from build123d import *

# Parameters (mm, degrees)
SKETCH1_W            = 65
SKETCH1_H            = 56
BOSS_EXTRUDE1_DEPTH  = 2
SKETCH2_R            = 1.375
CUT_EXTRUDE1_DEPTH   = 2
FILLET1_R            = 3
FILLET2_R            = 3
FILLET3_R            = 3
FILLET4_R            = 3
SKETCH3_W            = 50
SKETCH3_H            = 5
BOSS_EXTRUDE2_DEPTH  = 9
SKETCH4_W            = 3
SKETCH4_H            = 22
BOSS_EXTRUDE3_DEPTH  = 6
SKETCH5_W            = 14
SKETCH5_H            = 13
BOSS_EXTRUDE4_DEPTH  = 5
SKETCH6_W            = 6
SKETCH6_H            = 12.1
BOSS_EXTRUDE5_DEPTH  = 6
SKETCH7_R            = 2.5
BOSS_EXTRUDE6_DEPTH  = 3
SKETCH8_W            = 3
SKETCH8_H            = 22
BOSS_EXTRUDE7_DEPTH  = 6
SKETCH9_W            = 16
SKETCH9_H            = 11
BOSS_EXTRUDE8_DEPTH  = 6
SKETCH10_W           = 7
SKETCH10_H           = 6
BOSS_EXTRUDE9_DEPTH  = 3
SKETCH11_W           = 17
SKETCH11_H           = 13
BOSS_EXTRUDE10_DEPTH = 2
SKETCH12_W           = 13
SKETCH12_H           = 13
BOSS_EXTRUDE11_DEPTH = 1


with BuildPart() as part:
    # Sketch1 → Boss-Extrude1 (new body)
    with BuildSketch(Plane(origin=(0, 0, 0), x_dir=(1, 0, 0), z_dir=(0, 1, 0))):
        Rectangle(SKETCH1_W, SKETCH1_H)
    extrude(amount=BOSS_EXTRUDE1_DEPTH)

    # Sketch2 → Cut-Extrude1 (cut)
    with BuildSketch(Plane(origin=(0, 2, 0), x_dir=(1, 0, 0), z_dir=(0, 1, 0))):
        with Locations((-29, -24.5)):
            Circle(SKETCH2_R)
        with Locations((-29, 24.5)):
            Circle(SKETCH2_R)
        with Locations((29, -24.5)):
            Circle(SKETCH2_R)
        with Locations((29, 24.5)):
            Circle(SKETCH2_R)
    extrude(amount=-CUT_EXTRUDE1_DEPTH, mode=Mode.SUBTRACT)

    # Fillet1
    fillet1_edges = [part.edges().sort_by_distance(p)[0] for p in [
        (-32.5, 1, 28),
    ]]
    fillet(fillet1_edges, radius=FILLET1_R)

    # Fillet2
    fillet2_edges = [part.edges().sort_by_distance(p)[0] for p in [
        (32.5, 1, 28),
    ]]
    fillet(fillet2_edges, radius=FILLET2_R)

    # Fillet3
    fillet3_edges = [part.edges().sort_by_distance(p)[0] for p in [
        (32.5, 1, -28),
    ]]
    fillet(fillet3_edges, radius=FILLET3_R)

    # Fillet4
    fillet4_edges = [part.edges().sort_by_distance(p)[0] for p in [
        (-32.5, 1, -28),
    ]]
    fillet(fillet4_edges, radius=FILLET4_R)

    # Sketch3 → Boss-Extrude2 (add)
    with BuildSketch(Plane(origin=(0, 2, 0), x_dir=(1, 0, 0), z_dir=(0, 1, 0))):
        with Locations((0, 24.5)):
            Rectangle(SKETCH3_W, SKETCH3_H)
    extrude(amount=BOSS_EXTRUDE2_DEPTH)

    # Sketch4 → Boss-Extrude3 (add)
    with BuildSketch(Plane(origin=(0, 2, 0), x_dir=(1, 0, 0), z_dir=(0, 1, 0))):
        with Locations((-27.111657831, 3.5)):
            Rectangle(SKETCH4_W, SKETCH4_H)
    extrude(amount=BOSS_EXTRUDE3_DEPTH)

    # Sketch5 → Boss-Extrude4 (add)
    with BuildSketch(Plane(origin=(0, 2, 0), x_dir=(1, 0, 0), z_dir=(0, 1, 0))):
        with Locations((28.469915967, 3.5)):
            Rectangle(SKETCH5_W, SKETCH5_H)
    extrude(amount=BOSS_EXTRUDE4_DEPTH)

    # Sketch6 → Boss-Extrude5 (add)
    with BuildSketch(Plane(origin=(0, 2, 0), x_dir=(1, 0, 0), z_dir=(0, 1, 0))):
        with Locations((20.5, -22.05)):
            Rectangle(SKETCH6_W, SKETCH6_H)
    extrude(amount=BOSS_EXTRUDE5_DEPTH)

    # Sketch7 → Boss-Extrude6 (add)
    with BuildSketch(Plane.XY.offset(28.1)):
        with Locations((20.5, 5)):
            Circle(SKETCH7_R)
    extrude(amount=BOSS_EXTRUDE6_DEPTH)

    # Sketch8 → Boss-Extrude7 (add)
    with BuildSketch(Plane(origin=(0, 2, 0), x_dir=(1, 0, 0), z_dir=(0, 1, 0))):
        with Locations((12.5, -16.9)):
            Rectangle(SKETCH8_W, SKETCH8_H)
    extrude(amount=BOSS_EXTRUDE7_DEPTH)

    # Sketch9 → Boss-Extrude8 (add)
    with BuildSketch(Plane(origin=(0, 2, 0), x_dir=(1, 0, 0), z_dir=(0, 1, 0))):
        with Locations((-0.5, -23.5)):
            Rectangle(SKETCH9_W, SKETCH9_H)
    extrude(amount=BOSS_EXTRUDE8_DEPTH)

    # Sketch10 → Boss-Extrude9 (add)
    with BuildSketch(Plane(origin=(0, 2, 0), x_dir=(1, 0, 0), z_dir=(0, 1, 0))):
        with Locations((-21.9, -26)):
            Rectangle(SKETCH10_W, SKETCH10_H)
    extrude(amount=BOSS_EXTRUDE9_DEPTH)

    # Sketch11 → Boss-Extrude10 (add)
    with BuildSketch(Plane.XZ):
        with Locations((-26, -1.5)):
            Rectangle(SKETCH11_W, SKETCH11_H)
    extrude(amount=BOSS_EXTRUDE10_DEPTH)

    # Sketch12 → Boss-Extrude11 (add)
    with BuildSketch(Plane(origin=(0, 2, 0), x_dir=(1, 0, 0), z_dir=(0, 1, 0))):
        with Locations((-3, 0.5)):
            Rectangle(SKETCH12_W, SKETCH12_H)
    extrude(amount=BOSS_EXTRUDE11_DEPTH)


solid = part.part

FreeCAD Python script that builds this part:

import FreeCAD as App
import Part
import Sketcher


def edges_at(feature, points):
    """Names of the edges that pass closest to the given points."""
    edges = feature.Shape.Edges
    near = lambda p: min(range(len(edges)), key=lambda i: edges[i].distToShape(Part.Vertex(*p))[0])
    return sorted({f"Edge{near(p) + 1}" for p in points})

doc = App.newDocument("Part")
body = doc.addObject("PartDesign::Body", "Body")

sketch1 = doc.addObject("Sketcher::SketchObject", "Sketch")
body.addObject(sketch1)
sketch1.AttachmentSupport = (doc.XZ_Plane, [""])
sketch1.MapMode = "FlatFace"
sketch1.addGeometry([
    Part.LineSegment(App.Vector(-32.5, -28, 0), App.Vector(-32.5, 28, 0)),
    Part.LineSegment(App.Vector(-32.5, 28, 0), App.Vector(32.5, 28, 0)),
    Part.LineSegment(App.Vector(32.5, 28, 0), App.Vector(32.5, -28, 0)),
    Part.LineSegment(App.Vector(32.5, -28, 0), App.Vector(-32.5, -28, 0)),
], False)
sketch1.addConstraint([
    Sketcher.Constraint("Coincident", 0, 2, 1, 1),
    Sketcher.Constraint("Coincident", 1, 2, 2, 1),
    Sketcher.Constraint("Coincident", 2, 2, 3, 1),
    Sketcher.Constraint("Coincident", 3, 2, 0, 1),
    Sketcher.Constraint("Vertical", 0),
    Sketcher.Constraint("Horizontal", 1),
    Sketcher.Constraint("Vertical", 2),
    Sketcher.Constraint("Horizontal", 3),
    Sketcher.Constraint("Symmetric", 0, 2, 2, 2, -1, 1),
    Sketcher.Constraint("DistanceX", 1, 1, 1, 2, 65.0),
    Sketcher.Constraint("DistanceY", 0, 1, 0, 2, 56.0),
])
pad1 = doc.addObject("PartDesign::Pad", "Pad")
body.addObject(pad1)
pad1.Profile = sketch1
pad1.Length = 2
pad1.Reversed = True

sketch2 = doc.addObject("Sketcher::SketchObject", "Sketch001")
body.addObject(sketch2)
sketch2.AttachmentSupport = (doc.XZ_Plane, [""])
sketch2.MapMode = "FlatFace"
sketch2.AttachmentOffset = App.Placement(App.Vector(0, 0, -2), App.Rotation())
sketch2.addGeometry([
    Part.Circle(App.Vector(-29, 24.5, 0), App.Vector(0, 0, 1), 1.375),
    Part.Circle(App.Vector(-29, -24.5, 0), App.Vector(0, 0, 1), 1.375),
    Part.Circle(App.Vector(29, 24.5, 0), App.Vector(0, 0, 1), 1.375),
    Part.Circle(App.Vector(29, -24.5, 0), App.Vector(0, 0, 1), 1.375),
], False)
sketch2.addConstraint([
    Sketcher.Constraint("Equal", 0, 1),
    Sketcher.Constraint("Equal", 1, 2),
    Sketcher.Constraint("Equal", 2, 3),
    Sketcher.Constraint("Symmetric", 1, 3, 2, 3, -1, 1),
    Sketcher.Constraint("Symmetric", 0, 3, 3, 3, -1, 1),
    Sketcher.Constraint("Symmetric", 0, 3, 2, 3, -2),
    Sketcher.Constraint("Diameter", 0, 2.75),
    Sketcher.Constraint("DistanceX", 0, 3, -1, 1, 29.0),
    Sketcher.Constraint("DistanceY", 1, 3, 0, 3, 49.0),
])
pocket1 = doc.addObject("PartDesign::Pocket", "Pocket")
body.addObject(pocket1)
pocket1.Profile = sketch2
pocket1.Length = 2
pocket1.Reversed = True
doc.recompute()

fillet = doc.addObject("PartDesign::Fillet", "Fillet")
body.addObject(fillet)
fillet.Base = (pocket1, edges_at(pocket1, [(-32.5, 1, 28)]))
fillet.Radius = 3
doc.recompute()

fillet2 = doc.addObject("PartDesign::Fillet", "Fillet001")
body.addObject(fillet2)
fillet2.Base = (fillet, edges_at(fillet, [(32.5, 1, 28)]))
fillet2.Radius = 3
doc.recompute()

fillet3 = doc.addObject("PartDesign::Fillet", "Fillet002")
body.addObject(fillet3)
fillet3.Base = (fillet2, edges_at(fillet2, [(32.5, 1, -28)]))
fillet3.Radius = 3
doc.recompute()

fillet4 = doc.addObject("PartDesign::Fillet", "Fillet003")
body.addObject(fillet4)
fillet4.Base = (fillet3, edges_at(fillet3, [(-32.5, 1, -28)]))
fillet4.Radius = 3

sketch3 = doc.addObject("Sketcher::SketchObject", "Sketch002")
body.addObject(sketch3)
sketch3.AttachmentSupport = (doc.XZ_Plane, [""])
sketch3.MapMode = "FlatFace"
sketch3.AttachmentOffset = App.Placement(App.Vector(0, 0, -2), App.Rotation())
sketch3.addGeometry([
    Part.LineSegment(App.Vector(-25, -27, 0), App.Vector(-25, -22, 0)),
    Part.LineSegment(App.Vector(-25, -22, 0), App.Vector(25, -22, 0)),
    Part.LineSegment(App.Vector(25, -22, 0), App.Vector(25, -27, 0)),
    Part.LineSegment(App.Vector(25, -27, 0), App.Vector(-25, -27, 0)),
], False)
sketch3.addConstraint([
    Sketcher.Constraint("Coincident", 0, 2, 1, 1),
    Sketcher.Constraint("Coincident", 1, 2, 2, 1),
    Sketcher.Constraint("Coincident", 2, 2, 3, 1),
    Sketcher.Constraint("Coincident", 3, 2, 0, 1),
    Sketcher.Constraint("Vertical", 0),
    Sketcher.Constraint("Horizontal", 1),
    Sketcher.Constraint("Vertical", 2),
    Sketcher.Constraint("Horizontal", 3),
    Sketcher.Constraint("DistanceX", 1, 1, 1, 2, 50.0),
    Sketcher.Constraint("DistanceY", 0, 1, 0, 2, 5.0),
    Sketcher.Constraint("DistanceX", 0, 2, -1, 1, 25.0),
    Sketcher.Constraint("DistanceY", 0, 2, -1, 1, 22.0),
])
pad2 = doc.addObject("PartDesign::Pad", "Pad001")
body.addObject(pad2)
pad2.Profile = sketch3
pad2.Length = 9
pad2.Reversed = True

sketch4 = doc.addObject("Sketcher::SketchObject", "Sketch003")
body.addObject(sketch4)
sketch4.AttachmentSupport = (doc.XZ_Plane, [""])
sketch4.MapMode = "FlatFace"
sketch4.AttachmentOffset = App.Placement(App.Vector(0, 0, -2), App.Rotation())
sketch4.addGeometry([
    Part.LineSegment(App.Vector(-28.611658, -14.5, 0), App.Vector(-28.611658, 7.5, 0)),
    Part.LineSegment(App.Vector(-28.611658, 7.5, 0), App.Vector(-25.611658, 7.5, 0)),
    Part.LineSegment(App.Vector(-25.611658, 7.5, 0), App.Vector(-25.611658, -14.5, 0)),
    Part.LineSegment(App.Vector(-25.611658, -14.5, 0), App.Vector(-28.611658, -14.5, 0)),
], False)
sketch4.addConstraint([
    Sketcher.Constraint("Coincident", 0, 2, 1, 1),
    Sketcher.Constraint("Coincident", 1, 2, 2, 1),
    Sketcher.Constraint("Coincident", 2, 2, 3, 1),
    Sketcher.Constraint("Coincident", 3, 2, 0, 1),
    Sketcher.Constraint("Vertical", 0),
    Sketcher.Constraint("Horizontal", 1),
    Sketcher.Constraint("Vertical", 2),
    Sketcher.Constraint("Horizontal", 3),
    Sketcher.Constraint("DistanceX", 1, 1, 1, 2, 3.0),
    Sketcher.Constraint("DistanceY", 0, 1, 0, 2, 22.0),
    Sketcher.Constraint("DistanceY", -1, 1, 0, 2, 7.5),
    Sketcher.Constraint("DistanceX", 0, 2, -1, 1, 28.611658),
])
pad3 = doc.addObject("PartDesign::Pad", "Pad002")
body.addObject(pad3)
pad3.Profile = sketch4
pad3.Length = 6
pad3.Reversed = True

sketch5 = doc.addObject("Sketcher::SketchObject", "Sketch004")
body.addObject(sketch5)
sketch5.AttachmentSupport = (doc.XZ_Plane, [""])
sketch5.MapMode = "FlatFace"
sketch5.AttachmentOffset = App.Placement(App.Vector(0, 0, -2), App.Rotation())
sketch5.addGeometry([
    Part.LineSegment(App.Vector(21.469916, -10, 0), App.Vector(21.469916, 3, 0)),
    Part.LineSegment(App.Vector(21.469916, 3, 0), App.Vector(35.469916, 3, 0)),
    Part.LineSegment(App.Vector(35.469916, 3, 0), App.Vector(35.469916, -10, 0)),
    Part.LineSegment(App.Vector(35.469916, -10, 0), App.Vector(21.469916, -10, 0)),
], False)
sketch5.addConstraint([
    Sketcher.Constraint("Coincident", 0, 2, 1, 1),
    Sketcher.Constraint("Coincident", 1, 2, 2, 1),
    Sketcher.Constraint("Coincident", 2, 2, 3, 1),
    Sketcher.Constraint("Coincident", 3, 2, 0, 1),
    Sketcher.Constraint("Vertical", 0),
    Sketcher.Constraint("Horizontal", 1),
    Sketcher.Constraint("Vertical", 2),
    Sketcher.Constraint("Horizontal", 3),
    Sketcher.Constraint("DistanceX", 1, 1, 1, 2, 14.0),
    Sketcher.Constraint("DistanceY", 0, 1, 0, 2, 13.0),
    Sketcher.Constraint("DistanceY", -1, 1, 0, 2, 3.0),
    Sketcher.Constraint("DistanceX", -1, 1, 0, 2, 21.469916),
])
pad4 = doc.addObject("PartDesign::Pad", "Pad003")
body.addObject(pad4)
pad4.Profile = sketch5
pad4.Length = 5
pad4.Reversed = True

sketch6 = doc.addObject("Sketcher::SketchObject", "Sketch005")
body.addObject(sketch6)
sketch6.AttachmentSupport = (doc.XZ_Plane, [""])
sketch6.MapMode = "FlatFace"
sketch6.AttachmentOffset = App.Placement(App.Vector(0, 0, -2), App.Rotation())
sketch6.addGeometry([
    Part.LineSegment(App.Vector(17.5, 16, 0), App.Vector(17.5, 28.1, 0)),
    Part.LineSegment(App.Vector(17.5, 28.1, 0), App.Vector(23.5, 28.1, 0)),
    Part.LineSegment(App.Vector(23.5, 28.1, 0), App.Vector(23.5, 16, 0)),
    Part.LineSegment(App.Vector(23.5, 16, 0), App.Vector(17.5, 16, 0)),
], False)
sketch6.addConstraint([
    Sketcher.Constraint("Coincident", 0, 2, 1, 1),
    Sketcher.Constraint("Coincident", 1, 2, 2, 1),
    Sketcher.Constraint("Coincident", 2, 2, 3, 1),
    Sketcher.Constraint("Coincident", 3, 2, 0, 1),
    Sketcher.Constraint("Vertical", 0),
    Sketcher.Constraint("Horizontal", 1),
    Sketcher.Constraint("Vertical", 2),
    Sketcher.Constraint("Horizontal", 3),
    Sketcher.Constraint("DistanceX", 1, 1, 1, 2, 6.0),
    Sketcher.Constraint("DistanceY", 0, 1, 0, 2, 12.1),
    Sketcher.Constraint("DistanceY", -1, 1, 2, 2, 16.0),
    Sketcher.Constraint("DistanceX", -1, 1, 0, 2, 17.5),
])
pad5 = doc.addObject("PartDesign::Pad", "Pad004")
body.addObject(pad5)
pad5.Profile = sketch6
pad5.Length = 6
pad5.Reversed = True

sketch7 = doc.addObject("Sketcher::SketchObject", "Sketch006")
body.addObject(sketch7)
sketch7.AttachmentSupport = (doc.XY_Plane, [""])
sketch7.MapMode = "FlatFace"
sketch7.AttachmentOffset = App.Placement(App.Vector(0, 0, 28.1), App.Rotation())
sketch7.addGeometry(Part.Circle(App.Vector(20.5, 5, 0), App.Vector(0, 0, 1), 2.5), False)
sketch7.addConstraint([
    Sketcher.Constraint("Diameter", 0, 5.0),
    Sketcher.Constraint("DistanceY", -1, 1, 0, 3, 5.0),
    Sketcher.Constraint("DistanceX", -1, 1, 0, 3, 20.5),
])
pad6 = doc.addObject("PartDesign::Pad", "Pad005")
body.addObject(pad6)
pad6.Profile = sketch7
pad6.Length = 3

sketch8 = doc.addObject("Sketcher::SketchObject", "Sketch007")
body.addObject(sketch8)
sketch8.AttachmentSupport = (doc.XZ_Plane, [""])
sketch8.MapMode = "FlatFace"
sketch8.AttachmentOffset = App.Placement(App.Vector(0, 0, -2), App.Rotation())
sketch8.addGeometry([
    Part.LineSegment(App.Vector(11, 5.9, 0), App.Vector(11, 27.9, 0)),
    Part.LineSegment(App.Vector(11, 27.9, 0), App.Vector(14, 27.9, 0)),
    Part.LineSegment(App.Vector(14, 27.9, 0), App.Vector(14, 5.9, 0)),
    Part.LineSegment(App.Vector(14, 5.9, 0), App.Vector(11, 5.9, 0)),
], False)
sketch8.addConstraint([
    Sketcher.Constraint("Coincident", 0, 2, 1, 1),
    Sketcher.Constraint("Coincident", 1, 2, 2, 1),
    Sketcher.Constraint("Coincident", 2, 2, 3, 1),
    Sketcher.Constraint("Coincident", 3, 2, 0, 1),
    Sketcher.Constraint("Vertical", 0),
    Sketcher.Constraint("Horizontal", 1),
    Sketcher.Constraint("Vertical", 2),
    Sketcher.Constraint("Horizontal", 3),
    Sketcher.Constraint("DistanceX", 1, 1, 1, 2, 3.0),
    Sketcher.Constraint("DistanceY", 0, 1, 0, 2, 22.0),
    Sketcher.Constraint("DistanceX", -1, 1, 0, 2, 11.0),
    Sketcher.Constraint("DistanceY", -1, 1, 0, 2, 27.9),
])
pad7 = doc.addObject("PartDesign::Pad", "Pad006")
body.addObject(pad7)
pad7.Profile = sketch8
pad7.Length = 6
pad7.Reversed = True

sketch9 = doc.addObject("Sketcher::SketchObject", "Sketch008")
body.addObject(sketch9)
sketch9.AttachmentSupport = (doc.XZ_Plane, [""])
sketch9.MapMode = "FlatFace"
sketch9.AttachmentOffset = App.Placement(App.Vector(0, 0, -2), App.Rotation())
sketch9.addGeometry([
    Part.LineSegment(App.Vector(-8.5, 18, 0), App.Vector(-8.5, 29, 0)),
    Part.LineSegment(App.Vector(-8.5, 29, 0), App.Vector(7.5, 29, 0)),
    Part.LineSegment(App.Vector(7.5, 29, 0), App.Vector(7.5, 18, 0)),
    Part.LineSegment(App.Vector(7.5, 18, 0), App.Vector(-8.5, 18, 0)),
], False)
sketch9.addConstraint([
    Sketcher.Constraint("Coincident", 0, 2, 1, 1),
    Sketcher.Constraint("Coincident", 1, 2, 2, 1),
    Sketcher.Constraint("Coincident", 2, 2, 3, 1),
    Sketcher.Constraint("Coincident", 3, 2, 0, 1),
    Sketcher.Constraint("Vertical", 0),
    Sketcher.Constraint("Horizontal", 1),
    Sketcher.Constraint("Vertical", 2),
    Sketcher.Constraint("Horizontal", 3),
    Sketcher.Constraint("DistanceX", 1, 1, 1, 2, 16.0),
    Sketcher.Constraint("DistanceY", 0, 1, 0, 2, 11.0),
    Sketcher.Constraint("DistanceY", -1, 1, 0, 2, 29.0),
    Sketcher.Constraint("DistanceX", 0, 2, -1, 1, 8.5),
])
pad8 = doc.addObject("PartDesign::Pad", "Pad007")
body.addObject(pad8)
pad8.Profile = sketch9
pad8.Length = 6
pad8.Reversed = True

sketch10 = doc.addObject("Sketcher::SketchObject", "Sketch009")
body.addObject(sketch10)
sketch10.AttachmentSupport = (doc.XZ_Plane, [""])
sketch10.MapMode = "FlatFace"
sketch10.AttachmentOffset = App.Placement(App.Vector(0, 0, -2), App.Rotation())
sketch10.addGeometry([
    Part.LineSegment(App.Vector(-25.4, 23, 0), App.Vector(-25.4, 29, 0)),
    Part.LineSegment(App.Vector(-25.4, 29, 0), App.Vector(-18.4, 29, 0)),
    Part.LineSegment(App.Vector(-18.4, 29, 0), App.Vector(-18.4, 23, 0)),
    Part.LineSegment(App.Vector(-18.4, 23, 0), App.Vector(-25.4, 23, 0)),
], False)
sketch10.addConstraint([
    Sketcher.Constraint("Coincident", 0, 2, 1, 1),
    Sketcher.Constraint("Coincident", 1, 2, 2, 1),
    Sketcher.Constraint("Coincident", 2, 2, 3, 1),
    Sketcher.Constraint("Coincident", 3, 2, 0, 1),
    Sketcher.Constraint("Vertical", 0),
    Sketcher.Constraint("Horizontal", 1),
    Sketcher.Constraint("Vertical", 2),
    Sketcher.Constraint("Horizontal", 3),
    Sketcher.Constraint("DistanceX", 1, 1, 1, 2, 7.0),
    Sketcher.Constraint("DistanceY", 0, 1, 0, 2, 6.0),
    Sketcher.Constraint("DistanceY", -1, 1, 0, 2, 29.0),
    Sketcher.Constraint("DistanceX", 0, 2, -1, 1, 25.4),
])
pad9 = doc.addObject("PartDesign::Pad", "Pad008")
body.addObject(pad9)
pad9.Profile = sketch10
pad9.Length = 3
pad9.Reversed = True

sketch11 = doc.addObject("Sketcher::SketchObject", "Sketch010")
body.addObject(sketch11)
sketch11.AttachmentSupport = (doc.XZ_Plane, [""])
sketch11.MapMode = "FlatFace"
sketch11.addGeometry([
    Part.LineSegment(App.Vector(-34.5, 5, 0), App.Vector(-34.5, -8, 0)),
    Part.LineSegment(App.Vector(-34.5, -8, 0), App.Vector(-17.5, -8, 0)),
    Part.LineSegment(App.Vector(-17.5, -8, 0), App.Vector(-17.5, 5, 0)),
    Part.LineSegment(App.Vector(-17.5, 5, 0), App.Vector(-34.5, 5, 0)),
], False)
sketch11.addConstraint([
    Sketcher.Constraint("Coincident", 0, 2, 1, 1),
    Sketcher.Constraint("Coincident", 1, 2, 2, 1),
    Sketcher.Constraint("Coincident", 2, 2, 3, 1),
    Sketcher.Constraint("Coincident", 3, 2, 0, 1),
    Sketcher.Constraint("Vertical", 0),
    Sketcher.Constraint("Horizontal", 1),
    Sketcher.Constraint("Vertical", 2),
    Sketcher.Constraint("Horizontal", 3),
    Sketcher.Constraint("DistanceX", 1, 1, 1, 2, 17.0),
    Sketcher.Constraint("DistanceY", 0, 2, 0, 1, 13.0),
    Sketcher.Constraint("DistanceY", 0, 2, -1, 1, 8.0),
    Sketcher.Constraint("DistanceX", 0, 2, -1, 1, 34.5),
])
pad10 = doc.addObject("PartDesign::Pad", "Pad009")
body.addObject(pad10)
pad10.Profile = sketch11
pad10.Length = 2

sketch12 = doc.addObject("Sketcher::SketchObject", "Sketch011")
body.addObject(sketch12)
sketch12.AttachmentSupport = (doc.XZ_Plane, [""])
sketch12.MapMode = "FlatFace"
sketch12.AttachmentOffset = App.Placement(App.Vector(0, 0, -2), App.Rotation())
sketch12.addGeometry([
    Part.LineSegment(App.Vector(-9.5, -7, 0), App.Vector(-9.5, 6, 0)),
    Part.LineSegment(App.Vector(-9.5, 6, 0), App.Vector(3.5, 6, 0)),
    Part.LineSegment(App.Vector(3.5, 6, 0), App.Vector(3.5, -7, 0)),
    Part.LineSegment(App.Vector(3.5, -7, 0), App.Vector(-9.5, -7, 0)),
], False)
sketch12.addConstraint([
    Sketcher.Constraint("Coincident", 0, 2, 1, 1),
    Sketcher.Constraint("Coincident", 1, 2, 2, 1),
    Sketcher.Constraint("Coincident", 2, 2, 3, 1),
    Sketcher.Constraint("Coincident", 3, 2, 0, 1),
    Sketcher.Constraint("Vertical", 0),
    Sketcher.Constraint("Horizontal", 1),
    Sketcher.Constraint("Vertical", 2),
    Sketcher.Constraint("Horizontal", 3),
    Sketcher.Constraint("Equal", 3, 0),
    Sketcher.Constraint("DistanceX", 1, 1, 1, 2, 13.0),
    Sketcher.Constraint("DistanceY", -1, 1, 0, 2, 6.0),
    Sketcher.Constraint("DistanceX", 0, 2, -1, 1, 9.5),
])
pad11 = doc.addObject("PartDesign::Pad", "Pad010")
body.addObject(pad11)
pad11.Profile = sketch12
pad11.Length = 1
pad11.Reversed = True

doc.recompute()
